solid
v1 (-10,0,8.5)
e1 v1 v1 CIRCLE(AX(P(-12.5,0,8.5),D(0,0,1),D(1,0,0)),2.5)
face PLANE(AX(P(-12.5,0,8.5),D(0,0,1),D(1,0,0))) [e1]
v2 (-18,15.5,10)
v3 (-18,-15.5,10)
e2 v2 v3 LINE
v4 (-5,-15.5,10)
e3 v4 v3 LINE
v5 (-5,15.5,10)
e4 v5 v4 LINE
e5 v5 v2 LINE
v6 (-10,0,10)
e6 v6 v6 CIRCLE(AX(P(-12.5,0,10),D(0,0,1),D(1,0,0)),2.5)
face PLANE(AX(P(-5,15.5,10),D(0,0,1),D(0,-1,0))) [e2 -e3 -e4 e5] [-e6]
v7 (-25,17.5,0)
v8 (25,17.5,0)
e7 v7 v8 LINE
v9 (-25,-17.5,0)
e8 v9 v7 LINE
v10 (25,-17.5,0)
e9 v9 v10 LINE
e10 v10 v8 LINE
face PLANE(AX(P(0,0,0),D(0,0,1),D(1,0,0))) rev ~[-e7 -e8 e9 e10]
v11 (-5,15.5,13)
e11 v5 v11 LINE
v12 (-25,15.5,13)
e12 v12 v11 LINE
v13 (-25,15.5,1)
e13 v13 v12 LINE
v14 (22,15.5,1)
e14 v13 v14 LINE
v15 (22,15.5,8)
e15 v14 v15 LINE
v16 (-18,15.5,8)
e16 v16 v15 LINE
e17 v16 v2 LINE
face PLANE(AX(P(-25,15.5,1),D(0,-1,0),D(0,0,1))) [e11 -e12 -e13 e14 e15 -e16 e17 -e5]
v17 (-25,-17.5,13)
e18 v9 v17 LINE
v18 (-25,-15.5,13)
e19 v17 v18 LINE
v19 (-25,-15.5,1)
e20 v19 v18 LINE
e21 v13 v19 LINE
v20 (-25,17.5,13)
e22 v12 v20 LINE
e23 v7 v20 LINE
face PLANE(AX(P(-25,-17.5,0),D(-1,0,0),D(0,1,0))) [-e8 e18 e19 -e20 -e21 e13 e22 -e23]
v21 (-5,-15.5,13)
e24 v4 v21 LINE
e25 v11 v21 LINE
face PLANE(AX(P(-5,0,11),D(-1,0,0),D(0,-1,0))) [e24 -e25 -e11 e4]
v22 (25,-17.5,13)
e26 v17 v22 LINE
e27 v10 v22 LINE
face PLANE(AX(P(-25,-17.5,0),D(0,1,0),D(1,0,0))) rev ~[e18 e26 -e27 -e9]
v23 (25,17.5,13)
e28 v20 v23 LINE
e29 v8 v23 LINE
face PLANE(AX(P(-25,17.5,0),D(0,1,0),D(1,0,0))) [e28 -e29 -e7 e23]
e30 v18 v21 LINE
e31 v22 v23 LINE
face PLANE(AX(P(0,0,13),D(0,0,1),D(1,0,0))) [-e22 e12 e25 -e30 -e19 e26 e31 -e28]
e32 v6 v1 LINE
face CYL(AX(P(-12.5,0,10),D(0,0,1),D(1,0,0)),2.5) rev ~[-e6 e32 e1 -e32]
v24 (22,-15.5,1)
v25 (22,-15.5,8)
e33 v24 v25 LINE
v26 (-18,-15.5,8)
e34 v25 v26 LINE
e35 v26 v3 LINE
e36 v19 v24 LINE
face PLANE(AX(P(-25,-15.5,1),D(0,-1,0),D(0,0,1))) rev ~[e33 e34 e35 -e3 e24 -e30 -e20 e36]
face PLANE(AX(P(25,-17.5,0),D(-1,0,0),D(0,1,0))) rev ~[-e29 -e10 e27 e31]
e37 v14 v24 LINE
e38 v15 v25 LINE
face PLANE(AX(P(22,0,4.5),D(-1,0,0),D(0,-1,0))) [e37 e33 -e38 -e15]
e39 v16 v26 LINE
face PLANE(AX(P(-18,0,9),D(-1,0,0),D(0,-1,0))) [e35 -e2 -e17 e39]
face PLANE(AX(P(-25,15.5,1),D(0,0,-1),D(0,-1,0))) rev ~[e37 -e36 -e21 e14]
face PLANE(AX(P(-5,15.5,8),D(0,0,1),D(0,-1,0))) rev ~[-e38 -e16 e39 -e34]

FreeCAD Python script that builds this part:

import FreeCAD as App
import Part
import Sketcher


def add_polygon(sketch, points):
    """Adds a closed chain of lines whose ends are joined by coincident constraints."""
    first, n = sketch.GeometryCount, len(points)
    for a, b in zip(points, points[1:] + points[:1]):
        sketch.addGeometry(Part.LineSegment(App.Vector(*a, 0), App.Vector(*b, 0)), False)
    for i in range(n):
        sketch.addConstraint(Sketcher.Constraint("Coincident", first + i, 2, first + (i + 1) % n, 1))

doc = App.newDocument("Part")
params = doc.addObject("Spreadsheet::Sheet", "Params")
for row, (alias, value) in enumerate([
    ("sketch1_width", "50 mm"),
    ("sketch1_height", "35 mm"),
    ("pad1_length", "13 mm"),
    ("sketch2_width", "31 mm"),
    ("sketch2_height", "20 mm"),
    ("pocket1_length", "20 mm"),
    ("sketch3_width", "31 mm"),
    ("sketch3_height", "7 mm"),
    ("pocket2_length", "27 mm"),
    ("sketch4_width", "31 mm"),
    ("sketch4_height", "2 mm"),
    ("pad2_length", "13 mm"),
    ("sketch5_diameter", "5 mm"),
    ("pocket3_length", "1.5 mm"),
], start=1):
    params.set(f"A{row}", alias)
    params.set(f"B{row}", "=" + value)
    params.setAlias(f"B{row}", alias)

body = doc.addObject("PartDesign::Body", "Body")

# Sketch on XY plane
sketch1 = body.newObject("Sketcher::SketchObject", "Sketch")
sketch1.AttachmentSupport = (doc.getObject("XY_Plane"), [""])
sketch1.MapMode = "FlatFace"
add_polygon(sketch1, [(-25, 18), (-25, -18), (25, -18), (25, 18)])  # lines 0-3
sketch1.addConstraint([
    Sketcher.Constraint("Vertical", 0),
    Sketcher.Constraint("Horizontal", 1),
    Sketcher.Constraint("Vertical", 2),
    Sketcher.Constraint("Horizontal", 3),
    Sketcher.Constraint("Symmetric", 0, 2, 2, 2, -1, 1),
    Sketcher.Constraint("DistanceX", 1, 1, 1, 2, 50.0),
    Sketcher.Constraint("DistanceY", 0, 2, 0, 1, 35.0),
])
sketch1.setExpression("Constraints[9]", "Params.sketch1_width")
sketch1.setExpression("Constraints[10]", "Params.sketch1_height")
pad1 = body.newObject("PartDesign::Pad", "Pad")
pad1.Profile = sketch1
pad1.setExpression("Length", "Params.pad1_length")

# Sketch on YZ plane
sketch2 = body.newObject("Sketcher::SketchObject", "Sketch001")
sketch2.AttachmentSupport = (doc.getObject("YZ_Plane"), [""])
sketch2.MapMode = "FlatFace"
sketch2.AttachmentOffset = App.Placement(App.Vector(0, 0, -25), App.Rotation())
add_polygon(sketch2, [(16, 21), (16, 1), (-16, 1), (-16, 21)])  # lines 0-3
sketch2.addConstraint([
    Sketcher.Constraint("Vertical", 0),
    Sketcher.Constraint("Horizontal", 1),
    Sketcher.Constraint("Vertical", 2),
    Sketcher.Constraint("Horizontal", 3),
    Sketcher.Constraint("DistanceX", 1, 2, 1, 1, 31.0),
    Sketcher.Constraint("DistanceY", 0, 2, 0, 1, 20.0),
    Sketcher.Constraint("DistanceY", -1, 1, 0, 2, 1.0),
    Sketcher.Constraint("DistanceX", -1, 1, 0, 2, 15.5),
])
sketch2.setExpression("Constraints[8]", "Params.sketch2_width")
sketch2.setExpression("Constraints[9]", "Params.sketch2_height")
pocket1 = body.newObject("PartDesign::Pocket", "Pocket")
pocket1.Profile = sketch2
pocket1.setExpression("Length", "Params.pocket1_length")
pocket1.Reversed = True

# Sketch on YZ plane
sketch3 = body.newObject("Sketcher::SketchObject", "Sketch002")
sketch3.AttachmentSupport = (doc.getObject("YZ_Plane"), [""])
sketch3.MapMode = "FlatFace"
sketch3.AttachmentOffset = App.Placement(App.Vector(0, 0, -5), App.Rotation())
add_polygon(sketch3, [(16, 8), (16, 1), (-16, 1), (-16, 8)])  # lines 0-3
sketch3.addConstraint([
    Sketcher.Constraint("Vertical", 0),
    Sketcher.Constraint("Horizontal", 1),
    Sketcher.Constraint("Vertical", 2),
    Sketcher.Constraint("Horizontal", 3),
    Sketcher.Constraint("DistanceX", 1, 2, 1, 1, 31.0),
    Sketcher.Constraint("DistanceY", 0, 2, 0, 1, 7.0),
    Sketcher.Constraint("DistanceY", -1, 1, 0, 2, 1.0),
    Sketcher.Constraint("DistanceX", -1, 1, 0, 2, 15.5),
])
sketch3.setExpression("Constraints[8]", "Params.sketch3_width")
sketch3.setExpression("Constraints[9]", "Params.sketch3_height")
pocket2 = body.newObject("PartDesign::Pocket", "Pocket001")
pocket2.Profile = sketch3
pocket2.setExpression("Length", "Params.pocket2_length")
pocket2.Reversed = True

# Sketch on YZ plane
sketch4 = body.newObject("Sketcher::SketchObject", "Sketch003")
sketch4.AttachmentSupport = (doc.getObject("YZ_Plane"), [""])
sketch4.MapMode = "FlatFace"
sketch4.AttachmentOffset = App.Placement(App.Vector(0, 0, -5), App.Rotation())
add_polygon(sketch4, [(15.5, 10), (15.5, 8), (-15.5, 8), (-15.5, 10)])  # lines 0-3
sketch4.addConstraint([
    Sketcher.Constraint("Vertical", 0),
    Sketcher.Constraint("Horizontal", 1),
    Sketcher.Constraint("Vertical", 2),
    Sketcher.Constraint("Horizontal", 3),
    Sketcher.Constraint("DistanceX", 1, 2, 1, 1, 31.0),
    Sketcher.Constraint("DistanceY", 0, 2, 0, 1, 2.0),
    Sketcher.Constraint("DistanceY", -1, 1, 0, 2, 8.0),
    Sketcher.Constraint("DistanceX", -1, 1, 0, 2, 15.5),
])
sketch4.setExpression("Constraints[8]", "Params.sketch4_width")
sketch4.setExpression("Constraints[9]", "Params.sketch4_height")
pad2 = body.newObject("PartDesign::Pad", "Pad001")
pad2.Profile = sketch4
pad2.setExpression("Length", "Params.pad2_length")
pad2.Reversed = True

# Sketch on XY plane
sketch5 = body.newObject("Sketcher::SketchObject", "Sketch004")
sketch5.AttachmentSupport = (doc.getObject("XY_Plane"), [""])
sketch5.MapMode = "FlatFace"
sketch5.AttachmentOffset = App.Placement(App.Vector(0, 0, 10), App.Rotation())
sketch5.addGeometry(Part.Circle(App.Vector(-12.5, 0, 0), App.Vector(0, 0, 1), 2.5), False)
sketch5.addConstraint([
    Sketcher.Constraint("PointOnObject", 0, 3, -1),
    Sketcher.Constraint("Diameter", 0, 5.0),
    Sketcher.Constraint("DistanceX", 0, 3, -1, 1, 12.5),
])
sketch5.setExpression("Constraints[1]", "Params.sketch5_diameter")
pocket3 = body.newObject("PartDesign::Pocket", "Pocket002")
pocket3.Profile = sketch5
pocket3.setExpression("Length", "Params.pocket3_length")

doc.recompute()
